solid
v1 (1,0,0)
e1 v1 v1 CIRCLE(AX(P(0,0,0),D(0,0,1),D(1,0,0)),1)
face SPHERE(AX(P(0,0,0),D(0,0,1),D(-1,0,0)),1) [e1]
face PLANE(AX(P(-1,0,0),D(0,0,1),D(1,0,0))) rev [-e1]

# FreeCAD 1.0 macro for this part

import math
import FreeCAD as App
import Part
import Sketcher

V = App.Vector

doc = App.newDocument("Part")
body = doc.addObject("PartDesign::Body", "Body")

sketch1 = body.newObject("Sketcher::SketchObject", "Sketch")
sketch1.AttachmentSupport = (doc.getObject("XZ_Plane"), [""])
sketch1.MapMode = "FlatFace"
sketch1.addGeometry([
    Part.LineSegment(V(0, 0, 0), V(-1, 0, 0)),
    Part.ArcOfCircle(Part.Circle(V(0, 0, 0), V(0, 0, 1), 1), math.radians(90), math.radians(180)),
    Part.LineSegment(V(0, 1, 0), V(0, 0, 0)),
], False)
sketch1.addConstraint([
    Sketcher.Constraint("Coincident", 0, 2, 1, 2),
    Sketcher.Constraint("Coincident", 1, 1, 2, 1),
    Sketcher.Constraint("Coincident", 2, 2, 0, 1),
    Sketcher.Constraint("Horizontal", 0),
    Sketcher.Constraint("Vertical", 2),
    Sketcher.Constraint("Coincident", 1, 3, -1, 1),
    Sketcher.Constraint("Coincident", 2, 2, -1, 1),
    Sketcher.Constraint("Radius", 1, 1.0),
])
revolution = body.newObject("PartDesign::Revolution", "Revolution")
revolution.Profile = sketch1
revolution.ReferenceAxis = (sketch1, ["V_Axis"])
revolution.Angle = 360

doc.recompute()
